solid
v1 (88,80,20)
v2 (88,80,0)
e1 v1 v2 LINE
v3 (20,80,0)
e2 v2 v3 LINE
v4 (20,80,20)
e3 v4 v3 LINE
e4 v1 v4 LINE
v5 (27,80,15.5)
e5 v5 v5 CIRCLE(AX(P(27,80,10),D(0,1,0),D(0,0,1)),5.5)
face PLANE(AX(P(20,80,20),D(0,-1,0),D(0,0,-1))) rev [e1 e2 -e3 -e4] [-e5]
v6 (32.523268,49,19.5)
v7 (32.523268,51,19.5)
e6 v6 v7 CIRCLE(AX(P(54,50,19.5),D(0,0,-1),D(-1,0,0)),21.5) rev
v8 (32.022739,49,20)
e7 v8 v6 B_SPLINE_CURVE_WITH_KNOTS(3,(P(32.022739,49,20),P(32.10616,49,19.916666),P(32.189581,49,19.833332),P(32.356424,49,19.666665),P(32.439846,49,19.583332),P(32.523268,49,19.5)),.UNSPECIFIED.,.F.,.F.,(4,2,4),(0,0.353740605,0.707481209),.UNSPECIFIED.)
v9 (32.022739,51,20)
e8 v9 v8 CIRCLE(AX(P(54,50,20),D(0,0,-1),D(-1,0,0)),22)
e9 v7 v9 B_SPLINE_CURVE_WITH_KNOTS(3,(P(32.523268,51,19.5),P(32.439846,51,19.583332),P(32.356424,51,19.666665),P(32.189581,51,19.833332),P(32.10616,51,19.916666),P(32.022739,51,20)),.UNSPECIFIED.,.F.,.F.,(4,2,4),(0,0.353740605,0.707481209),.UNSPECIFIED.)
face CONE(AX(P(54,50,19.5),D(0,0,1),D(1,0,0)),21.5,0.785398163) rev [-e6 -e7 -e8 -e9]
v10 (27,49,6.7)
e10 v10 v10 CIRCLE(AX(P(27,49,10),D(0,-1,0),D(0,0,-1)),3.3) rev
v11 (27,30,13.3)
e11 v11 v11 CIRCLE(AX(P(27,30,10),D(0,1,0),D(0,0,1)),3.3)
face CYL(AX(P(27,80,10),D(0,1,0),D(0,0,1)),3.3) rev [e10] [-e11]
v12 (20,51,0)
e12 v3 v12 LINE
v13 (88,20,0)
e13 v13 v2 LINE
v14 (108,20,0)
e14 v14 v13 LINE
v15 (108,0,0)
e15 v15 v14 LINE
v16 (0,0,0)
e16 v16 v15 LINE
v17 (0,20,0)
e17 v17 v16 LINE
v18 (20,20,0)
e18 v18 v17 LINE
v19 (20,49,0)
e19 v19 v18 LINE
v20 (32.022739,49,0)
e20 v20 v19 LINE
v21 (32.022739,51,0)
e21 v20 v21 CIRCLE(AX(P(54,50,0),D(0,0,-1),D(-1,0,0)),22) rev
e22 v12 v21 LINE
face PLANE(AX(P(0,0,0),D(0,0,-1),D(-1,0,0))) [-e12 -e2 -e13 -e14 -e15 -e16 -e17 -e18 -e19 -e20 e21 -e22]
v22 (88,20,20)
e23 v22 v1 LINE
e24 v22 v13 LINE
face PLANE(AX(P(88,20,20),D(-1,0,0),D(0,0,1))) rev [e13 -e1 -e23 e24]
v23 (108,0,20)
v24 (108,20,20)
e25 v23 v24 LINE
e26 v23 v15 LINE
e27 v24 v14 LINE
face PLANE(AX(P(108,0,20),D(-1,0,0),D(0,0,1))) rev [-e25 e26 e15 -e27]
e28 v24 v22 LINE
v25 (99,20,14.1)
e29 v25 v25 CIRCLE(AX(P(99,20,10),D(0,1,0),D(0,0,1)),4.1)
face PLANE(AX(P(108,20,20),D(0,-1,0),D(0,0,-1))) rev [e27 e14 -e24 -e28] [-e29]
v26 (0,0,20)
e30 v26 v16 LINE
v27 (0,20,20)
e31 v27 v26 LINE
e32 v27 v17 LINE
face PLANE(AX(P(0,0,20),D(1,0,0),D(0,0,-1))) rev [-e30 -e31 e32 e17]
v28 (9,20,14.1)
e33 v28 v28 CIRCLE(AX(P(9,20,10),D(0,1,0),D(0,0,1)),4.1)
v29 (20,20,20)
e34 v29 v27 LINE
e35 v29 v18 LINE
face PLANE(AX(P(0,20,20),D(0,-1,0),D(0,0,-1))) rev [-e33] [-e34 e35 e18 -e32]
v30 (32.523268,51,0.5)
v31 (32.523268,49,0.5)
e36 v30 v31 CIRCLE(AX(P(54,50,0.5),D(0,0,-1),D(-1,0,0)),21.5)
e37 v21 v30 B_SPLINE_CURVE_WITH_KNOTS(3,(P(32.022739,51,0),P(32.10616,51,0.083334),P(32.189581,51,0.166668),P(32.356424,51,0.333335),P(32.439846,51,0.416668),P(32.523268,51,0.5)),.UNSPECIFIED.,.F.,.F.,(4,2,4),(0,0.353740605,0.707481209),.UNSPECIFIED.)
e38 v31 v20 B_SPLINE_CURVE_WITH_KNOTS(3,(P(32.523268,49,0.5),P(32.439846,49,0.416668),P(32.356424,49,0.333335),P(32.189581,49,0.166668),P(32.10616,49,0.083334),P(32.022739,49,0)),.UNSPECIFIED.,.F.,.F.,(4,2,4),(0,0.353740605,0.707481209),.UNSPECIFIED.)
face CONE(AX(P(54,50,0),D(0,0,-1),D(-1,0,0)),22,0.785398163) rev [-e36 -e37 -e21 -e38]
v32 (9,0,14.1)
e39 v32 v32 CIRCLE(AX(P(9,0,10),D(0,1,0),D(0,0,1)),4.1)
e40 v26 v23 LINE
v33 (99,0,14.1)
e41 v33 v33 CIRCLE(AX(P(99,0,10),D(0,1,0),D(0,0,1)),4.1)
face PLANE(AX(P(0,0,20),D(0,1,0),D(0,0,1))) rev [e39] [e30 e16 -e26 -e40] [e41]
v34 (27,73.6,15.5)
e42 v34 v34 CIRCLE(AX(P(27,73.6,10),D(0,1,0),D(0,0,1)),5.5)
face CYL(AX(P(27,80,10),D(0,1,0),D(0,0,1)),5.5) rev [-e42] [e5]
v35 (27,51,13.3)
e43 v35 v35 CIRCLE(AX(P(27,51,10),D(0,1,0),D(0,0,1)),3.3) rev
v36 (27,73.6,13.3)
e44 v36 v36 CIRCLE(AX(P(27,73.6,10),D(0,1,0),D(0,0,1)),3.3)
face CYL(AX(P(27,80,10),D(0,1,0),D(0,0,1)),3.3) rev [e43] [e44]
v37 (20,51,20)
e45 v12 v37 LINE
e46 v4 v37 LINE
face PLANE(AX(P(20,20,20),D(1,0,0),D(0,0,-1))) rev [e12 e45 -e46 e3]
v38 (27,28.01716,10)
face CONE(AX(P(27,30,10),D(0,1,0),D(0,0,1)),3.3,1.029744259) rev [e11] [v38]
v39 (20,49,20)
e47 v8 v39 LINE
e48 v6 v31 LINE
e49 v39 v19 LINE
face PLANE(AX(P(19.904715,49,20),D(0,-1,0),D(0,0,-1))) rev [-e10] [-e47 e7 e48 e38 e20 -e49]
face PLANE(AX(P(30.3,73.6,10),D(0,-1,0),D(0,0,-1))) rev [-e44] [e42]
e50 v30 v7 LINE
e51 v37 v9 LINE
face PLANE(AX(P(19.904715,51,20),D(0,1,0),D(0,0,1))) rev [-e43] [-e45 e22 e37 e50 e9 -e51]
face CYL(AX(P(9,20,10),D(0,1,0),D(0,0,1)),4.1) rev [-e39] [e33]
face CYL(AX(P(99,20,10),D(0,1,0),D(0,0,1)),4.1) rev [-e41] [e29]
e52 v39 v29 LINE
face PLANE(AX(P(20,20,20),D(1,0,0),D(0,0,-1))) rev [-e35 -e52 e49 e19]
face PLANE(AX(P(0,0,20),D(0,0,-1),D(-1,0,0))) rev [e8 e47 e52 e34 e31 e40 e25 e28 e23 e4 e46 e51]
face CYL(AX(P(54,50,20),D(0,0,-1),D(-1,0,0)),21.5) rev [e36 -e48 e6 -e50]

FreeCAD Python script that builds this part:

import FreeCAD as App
import Part
import Sketcher

V = App.Vector


def edges_at(feature, points):
    """Names of the edges that pass closest to the given points."""
    edges = feature.Shape.Edges
    near = lambda p: min(range(len(edges)), key=lambda i: edges[i].distToShape(Part.Vertex(*p))[0])
    return sorted({f"Edge{near(p) + 1}" for p in points})

doc = App.newDocument("Part")
params = doc.addObject("Spreadsheet::Sheet", "Params")
for row, (alias, value) in enumerate([
    ("sketch1_diameter", "43 mm"),
    ("sketch1_width", "108 mm"),
    ("sketch1_width2", "20 mm"),
    ("sketch1_height", "60 mm"),
    ("pad1_length", "20 mm"),
    ("sketch2_diameter", "8.2 mm"),
    ("hole_diameter", "8.2 mm"),
    ("sketch3_diameter", "6.6 mm"),
    ("hole2_diameter", "6.6 mm"),
    ("hole2_depth", "50 mm"),
    ("hole2_cbore_diameter", "11 mm"),
    ("hole2_cbore_depth", "6.4 mm"),
    ("sketch4_height", "2 mm"),
    ("chamfer_size", "0.5 mm"),
    ("chamfer2_size", "0.5 mm"),
], start=1):
    params.set(f"A{row}", alias)
    params.set(f"B{row}", "=" + value)
    params.setAlias(f"B{row}", alias)

body = doc.addObject("PartDesign::Body", "Body")

# Sketch on XY plane
sketch1 = body.newObject("Sketcher::SketchObject", "Sketch")
sketch1.AttachmentSupport = (doc.getObject("XY_Plane"), [""])
sketch1.MapMode = "FlatFace"
sketch1.addGeometry([
    Part.LineSegment(V(0, 0, 0), V(108, 0, 0)),  # 0
    Part.LineSegment(V(108, 0, 0), V(108, 20, 0)),  # 1
    Part.LineSegment(V(108, 20, 0), V(88, 20, 0)),  # 2
    Part.LineSegment(V(88, 20, 0), V(88, 80, 0)),  # 3
    Part.LineSegment(V(88, 80, 0), V(20, 80, 0)),  # 4
    Part.LineSegment(V(20, 80, 0), V(20, 20, 0)),  # 5
    Part.LineSegment(V(20, 20, 0), V(0, 20, 0)),  # 6
    Part.LineSegment(V(0, 20, 0), V(0, 0, 0)),  # 7
    Part.Circle(V(54, 50, 0), V(0, 0, 1), 22),  # 8
], False)
sketch1.addConstraint([
    Sketcher.Constraint("Coincident", 0, 2, 1, 1),
    Sketcher.Constraint("Coincident", 1, 2, 2, 1),
    Sketcher.Constraint("Coincident", 2, 2, 3, 1),
    Sketcher.Constraint("Coincident", 3, 2, 4, 1),
    Sketcher.Constraint("Coincident", 4, 2, 5, 1),
    Sketcher.Constraint("Coincident", 5, 2, 6, 1),
    Sketcher.Constraint("Coincident", 6, 2, 7, 1),
    Sketcher.Constraint("Coincident", 7, 2, 0, 1),
    Sketcher.Constraint("Horizontal", 0),
    Sketcher.Constraint("Vertical", 1),
    Sketcher.Constraint("Horizontal", 2),
    Sketcher.Constraint("Vertical", 3),
    Sketcher.Constraint("Horizontal", 4),
    Sketcher.Constraint("Vertical", 5),
    Sketcher.Constraint("Horizontal", 6),
    Sketcher.Constraint("Vertical", 7),
    Sketcher.Constraint("Coincident", 7, 2, -1, 1),
    Sketcher.Constraint("Horizontal", 2, 2, 5, 2),
    Sketcher.Constraint("Equal", 2, 6),
    Sketcher.Constraint("Equal", 6, 1),
    Sketcher.Constraint("Diameter", 8, 43.0),
    Sketcher.Constraint("DistanceX", 0, 1, 0, 2, 108.0),
    Sketcher.Constraint("DistanceX", 2, 2, 2, 1, 20.0),
    Sketcher.Constraint("DistanceY", 3, 1, 3, 2, 60.0),
    Sketcher.Constraint("DistanceX", -1, 1, 8, 3, 54.0),
    Sketcher.Constraint("DistanceY", -1, 1, 8, 3, 50.0),
])
sketch1.setExpression("Constraints[20]", "Params.sketch1_diameter")
sketch1.setExpression("Constraints[21]", "Params.sketch1_width")
sketch1.setExpression("Constraints[22]", "Params.sketch1_width2")
sketch1.setExpression("Constraints[23]", "Params.sketch1_height")
pad1 = body.newObject("PartDesign::Pad", "Pad")
pad1.Profile = sketch1
pad1.setExpression("Length", "Params.pad1_length")

# Sketch on XZ plane
sketch2 = body.newObject("Sketcher::SketchObject", "Sketch001")
sketch2.AttachmentSupport = (doc.getObject("XZ_Plane"), [""])
sketch2.MapMode = "FlatFace"
sketch2.AttachmentOffset = App.Placement(V(0, 0, -20), App.Rotation())
sketch2.addGeometry([
    Part.Circle(V(9, 10, 0), V(0, 0, 1), 4.1),
    Part.Circle(V(99, 10, 0), V(0, 0, 1), 4.1),
], False)
sketch2.addConstraint([
    Sketcher.Constraint("Equal", 0, 1),
    Sketcher.Constraint("Horizontal", 0, 3, 1, 3),
    Sketcher.Constraint("Diameter", 0, 8.2),
    Sketcher.Constraint("DistanceX", -1, 1, 0, 3, 9.0),
    Sketcher.Constraint("DistanceY", -1, 1, 0, 3, 10.0),
    Sketcher.Constraint("DistanceX", -1, 1, 1, 3, 99.0),
])
sketch2.setExpression("Constraints[2]", "Params.sketch2_diameter")
doc.recompute()
hole = body.newObject("PartDesign::Hole", "Hole")
hole.Profile = sketch2
hole.ThreadType = "None"
hole.setExpression("Diameter", "Params.hole_diameter")
hole.DepthType = "ThroughAll"
hole.Reversed = True

# Sketch on XZ plane
sketch3 = body.newObject("Sketcher::SketchObject", "Sketch002")
sketch3.AttachmentSupport = (doc.getObject("XZ_Plane"), [""])
sketch3.MapMode = "FlatFace"
sketch3.AttachmentOffset = App.Placement(V(0, 0, -80), App.Rotation())
sketch3.addGeometry(Part.Circle(V(27, 10, 0), V(0, 0, 1), 3.3), False)
sketch3.addConstraint([
    Sketcher.Constraint("Diameter", 0, 6.6),
    Sketcher.Constraint("DistanceX", -1, 1, 0, 3, 27.0),
    Sketcher.Constraint("DistanceY", -1, 1, 0, 3, 10.0),
])
sketch3.setExpression("Constraints[0]", "Params.sketch3_diameter")
doc.recompute()
hole2 = body.newObject("PartDesign::Hole", "Hole001")
hole2.Profile = sketch3
hole2.ThreadType = "None"
hole2.setExpression("Diameter", "Params.hole2_diameter")
hole2.DepthType = "Dimension"
hole2.setExpression("Depth", "Params.hole2_depth")
hole2.DrillPoint = "Angled"
hole2.DrillPointAngle = 118
hole2.HoleCutType = "Counterbore"
hole2.setExpression("HoleCutDiameter", "Params.hole2_cbore_diameter")
hole2.setExpression("HoleCutDepth", "Params.hole2_cbore_depth")
hole2.Reversed = True

# Sketch on XY plane
sketch4 = body.newObject("Sketcher::SketchObject", "Sketch003")
sketch4.AttachmentSupport = (doc.getObject("XY_Plane"), [""])
sketch4.MapMode = "FlatFace"
sketch4.addGeometry([
    Part.LineSegment(V(35.4, 51, 0), V(35.4, 49, 0)),
    Part.LineSegment(V(35.4, 49, 0), V(19.9, 49, 0)),
    Part.LineSegment(V(19.9, 49, 0), V(19.9, 51, 0)),
    Part.LineSegment(V(19.9, 51, 0), V(35.4, 51, 0)),
], False)
sketch4.addConstraint([
    Sketcher.Constraint("Coincident", 0, 2, 1, 1),
    Sketcher.Constraint("Coincident", 1, 2, 2, 1),
    Sketcher.Constraint("Coincident", 2, 2, 3, 1),
    Sketcher.Constraint("Coincident", 3, 2, 0, 1),
    Sketcher.Constraint("Vertical", 0),
    Sketcher.Constraint("Horizontal", 1),
    Sketcher.Constraint("Vertical", 2),
    Sketcher.Constraint("Horizontal", 3),
    Sketcher.Constraint("DistanceY", 0, 2, 0, 1, 2.0),
    Sketcher.Constraint("DistanceY", -1, 1, 0, 2, 49.0),
    Sketcher.Constraint("DistanceX", 1, 2, 1, 1, 15.521374),
    Sketcher.Constraint("DistanceX", -1, 1, 0, 2, 35.426089),
])
sketch4.setExpression("Constraints[8]", "Params.sketch4_height")
pocket1 = body.newObject("PartDesign::Pocket", "Pocket")
pocket1.Profile = sketch4
pocket1.Type = "ThroughAll"
pocket1.Reversed = True
doc.recompute()

chamfer = body.newObject("PartDesign::Chamfer", "Chamfer")
chamfer.Base = (pocket1, edges_at(pocket1, [(54.5, 71.494, 0)]))
chamfer.setExpression("Size", "Params.chamfer_size")
doc.recompute()

chamfer2 = body.newObject("PartDesign::Chamfer", "Chamfer001")
chamfer2.Base = (chamfer, edges_at(chamfer, [(54.5, 28.506, 20)]))
chamfer2.setExpression("Size", "Params.chamfer2_size")

doc.recompute()
